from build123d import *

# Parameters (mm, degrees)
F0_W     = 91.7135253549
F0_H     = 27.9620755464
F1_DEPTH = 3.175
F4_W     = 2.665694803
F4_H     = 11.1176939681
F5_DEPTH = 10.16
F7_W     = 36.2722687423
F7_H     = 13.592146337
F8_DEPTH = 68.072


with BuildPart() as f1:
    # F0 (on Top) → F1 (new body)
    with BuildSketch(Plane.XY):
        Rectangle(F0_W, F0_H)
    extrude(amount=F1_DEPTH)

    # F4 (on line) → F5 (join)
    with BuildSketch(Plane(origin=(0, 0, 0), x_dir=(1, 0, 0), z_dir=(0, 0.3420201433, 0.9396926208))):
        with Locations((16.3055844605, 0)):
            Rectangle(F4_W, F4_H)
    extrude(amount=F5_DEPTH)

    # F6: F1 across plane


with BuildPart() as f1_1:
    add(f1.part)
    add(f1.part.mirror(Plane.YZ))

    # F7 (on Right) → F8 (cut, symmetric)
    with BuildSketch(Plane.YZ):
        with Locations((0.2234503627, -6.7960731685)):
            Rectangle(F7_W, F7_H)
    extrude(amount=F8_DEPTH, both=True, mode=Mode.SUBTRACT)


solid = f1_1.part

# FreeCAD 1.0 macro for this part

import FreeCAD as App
import Part
import Sketcher

doc = App.newDocument("Part")
params = doc.addObject("Spreadsheet::Sheet", "Params")
for row, (alias, value) in enumerate([
    ("pad1_length", "0.125 in"),
    ("pad2_length", "0.4 in"),
    ("pocket1_length", "5.36 in"),
], start=1):
    params.set(f"A{row}", alias)
    params.set(f"B{row}", "=" + value)
    params.setAlias(f"B{row}", alias)

body = doc.addObject("PartDesign::Body", "Body")

# Sketch on XY plane
sketch1 = body.newObject("Sketcher::SketchObject", "Sketch")
sketch1.AttachmentSupport = (doc.getObject("XY_Plane"), [""])
sketch1.MapMode = "FlatFace"
sketch1.addGeometry(Part.LineSegment(App.Vector(-46, 14, 0), App.Vector(-46, -14, 0)), False)
sketch1.addGeometry(Part.LineSegment(App.Vector(-46, -14, 0), App.Vector(46, -14, 0)), False)
sketch1.addGeometry(Part.LineSegment(App.Vector(46, -14, 0), App.Vector(46, 14, 0)), False)
sketch1.addGeometry(Part.LineSegment(App.Vector(46, 14, 0), App.Vector(-46, 14, 0)), False)
sketch1.addConstraint(Sketcher.Constraint("Coincident", 0, 2, 1, 1))
sketch1.addConstraint(Sketcher.Constraint("Coincident", 1, 2, 2, 1))
sketch1.addConstraint(Sketcher.Constraint("Coincident", 2, 2, 3, 1))
sketch1.addConstraint(Sketcher.Constraint("Coincident", 3, 2, 0, 1))
sketch1.addConstraint(Sketcher.Constraint("Vertical", 0))
sketch1.addConstraint(Sketcher.Constraint("Horizontal", 1))
sketch1.addConstraint(Sketcher.Constraint("Vertical", 2))
sketch1.addConstraint(Sketcher.Constraint("Horizontal", 3))
sketch1.addConstraint(Sketcher.Constraint("Symmetric", 0, 2, 2, 2, -1, 1))
sketch1.addConstraint(Sketcher.Constraint("DistanceX", 1, 1, 1, 2, 91.713525))
sketch1.addConstraint(Sketcher.Constraint("DistanceY", 0, 2, 0, 1, 27.962076))
pad1 = body.newObject("PartDesign::Pad", "Pad")
pad1.Profile = sketch1
pad1.setExpression("Length", "Params.pad1_length")

# Sketch on an angled plane
sketch2 = body.newObject("Sketcher::SketchObject", "Sketch001")
sketch2.Placement = App.Placement(App.Vector(0, 0, 0), App.Rotation(App.Vector(1, 0, 0), App.Vector(0, 0.939692621, -0.342020143), App.Vector(0, 0.342020143, 0.939692621), "ZXY"))
sketch2.addGeometry(Part.LineSegment(App.Vector(15, 5.6, 0), App.Vector(15, -5.6, 0)), False)
sketch2.addGeometry(Part.LineSegment(App.Vector(15, -5.6, 0), App.Vector(17.6, -5.6, 0)), False)
sketch2.addGeometry(Part.LineSegment(App.Vector(17.6, -5.6, 0), App.Vector(17.6, 5.6, 0)), False)
sketch2.addGeometry(Part.LineSegment(App.Vector(17.6, 5.6, 0), App.Vector(15, 5.6, 0)), False)
sketch2.addConstraint(Sketcher.Constraint("Coincident", 0, 2, 1, 1))
sketch2.addConstraint(Sketcher.Constraint("Coincident", 1, 2, 2, 1))
sketch2.addConstraint(Sketcher.Constraint("Coincident", 2, 2, 3, 1))
sketch2.addConstraint(Sketcher.Constraint("Coincident", 3, 2, 0, 1))
sketch2.addConstraint(Sketcher.Constraint("Vertical", 0))
sketch2.addConstraint(Sketcher.Constraint("Horizontal", 1))
sketch2.addConstraint(Sketcher.Constraint("Vertical", 2))
sketch2.addConstraint(Sketcher.Constraint("Horizontal", 3))
sketch2.addConstraint(Sketcher.Constraint("DistanceX", 1, 1, 1, 2, 2.665695))
sketch2.addConstraint(Sketcher.Constraint("DistanceY", 0, 2, 0, 1, 11.117694))
sketch2.addConstraint(Sketcher.Constraint("DistanceX", -1, 1, 1, 2, 17.638432))
sketch2.addConstraint(Sketcher.Constraint("DistanceY", 0, 2, -1, 1, 5.558847))
pad2 = body.newObject("PartDesign::Pad", "Pad001")
pad2.Profile = sketch2
pad2.setExpression("Length", "Params.pad2_length")
body2 = doc.addObject("PartDesign::Body", "Body001")
doc.recompute()

body2.BaseFeature = body
doc.recompute()

mirroring = doc.addObject("Part::Mirroring", "Mirroring")
mirroring.Source = body
mirroring.Base = App.Vector(0, 0, 0)
mirroring.Normal = App.Vector(1, 0, 0)
body3 = doc.addObject("PartDesign::Body", "Body002")
body3.BaseFeature = mirroring
boolean = body2.newObject("PartDesign::Boolean", "Boolean")
boolean.Type = "Fuse"
boolean.addObjects([body3])
doc.recompute()

# Sketch on YZ plane
sketch3 = body2.newObject("Sketcher::SketchObject", "Sketch002")
sketch3.AttachmentSupport = (doc.getObject("YZ_Plane001"), [""])
sketch3.MapMode = "FlatFace"
sketch3.addGeometry(Part.LineSegment(App.Vector(-18, 0, 0), App.Vector(-18, -14, 0)), False)
sketch3.addGeometry(Part.LineSegment(App.Vector(-18, -14, 0), App.Vector(18, -14, 0)), False)
sketch3.addGeometry(Part.LineSegment(App.Vector(18, -14, 0), App.Vector(18, 0, 0)), False)
sketch3.addGeometry(Part.LineSegment(App.Vector(18, 0, 0), App.Vector(-18, 0, 0)), False)
sketch3.addConstraint(Sketcher.Constraint("Coincident", 0, 2, 1, 1))
sketch3.addConstraint(Sketcher.Constraint("Coincident", 1, 2, 2, 1))
sketch3.addConstraint(Sketcher.Constraint("Coincident", 2, 2, 3, 1))
sketch3.addConstraint(Sketcher.Constraint("Coincident", 3, 2, 0, 1))
sketch3.addConstraint(Sketcher.Constraint("Vertical", 0))
sketch3.addConstraint(Sketcher.Constraint("Horizontal", 1))
sketch3.addConstraint(Sketcher.Constraint("Vertical", 2))
sketch3.addConstraint(Sketcher.Constraint("Horizontal", 3))
sketch3.addConstraint(Sketcher.Constraint("PointOnObject", 2, 2, -1))
sketch3.addConstraint(Sketcher.Constraint("DistanceX", 1, 1, 1, 2, 36.272269))
sketch3.addConstraint(Sketcher.Constraint("DistanceY", 0, 2, 0, 1, 13.592146))
sketch3.addConstraint(Sketcher.Constraint("DistanceX", 0, 2, -1, 1, 17.912684))
pocket1 = body2.newObject("PartDesign::Pocket", "Pocket")
pocket1.Profile = sketch3
pocket1.setExpression("Length", "Params.pocket1_length")
pocket1.Midplane = True
mirroring.Visibility = False

doc.recompute()
